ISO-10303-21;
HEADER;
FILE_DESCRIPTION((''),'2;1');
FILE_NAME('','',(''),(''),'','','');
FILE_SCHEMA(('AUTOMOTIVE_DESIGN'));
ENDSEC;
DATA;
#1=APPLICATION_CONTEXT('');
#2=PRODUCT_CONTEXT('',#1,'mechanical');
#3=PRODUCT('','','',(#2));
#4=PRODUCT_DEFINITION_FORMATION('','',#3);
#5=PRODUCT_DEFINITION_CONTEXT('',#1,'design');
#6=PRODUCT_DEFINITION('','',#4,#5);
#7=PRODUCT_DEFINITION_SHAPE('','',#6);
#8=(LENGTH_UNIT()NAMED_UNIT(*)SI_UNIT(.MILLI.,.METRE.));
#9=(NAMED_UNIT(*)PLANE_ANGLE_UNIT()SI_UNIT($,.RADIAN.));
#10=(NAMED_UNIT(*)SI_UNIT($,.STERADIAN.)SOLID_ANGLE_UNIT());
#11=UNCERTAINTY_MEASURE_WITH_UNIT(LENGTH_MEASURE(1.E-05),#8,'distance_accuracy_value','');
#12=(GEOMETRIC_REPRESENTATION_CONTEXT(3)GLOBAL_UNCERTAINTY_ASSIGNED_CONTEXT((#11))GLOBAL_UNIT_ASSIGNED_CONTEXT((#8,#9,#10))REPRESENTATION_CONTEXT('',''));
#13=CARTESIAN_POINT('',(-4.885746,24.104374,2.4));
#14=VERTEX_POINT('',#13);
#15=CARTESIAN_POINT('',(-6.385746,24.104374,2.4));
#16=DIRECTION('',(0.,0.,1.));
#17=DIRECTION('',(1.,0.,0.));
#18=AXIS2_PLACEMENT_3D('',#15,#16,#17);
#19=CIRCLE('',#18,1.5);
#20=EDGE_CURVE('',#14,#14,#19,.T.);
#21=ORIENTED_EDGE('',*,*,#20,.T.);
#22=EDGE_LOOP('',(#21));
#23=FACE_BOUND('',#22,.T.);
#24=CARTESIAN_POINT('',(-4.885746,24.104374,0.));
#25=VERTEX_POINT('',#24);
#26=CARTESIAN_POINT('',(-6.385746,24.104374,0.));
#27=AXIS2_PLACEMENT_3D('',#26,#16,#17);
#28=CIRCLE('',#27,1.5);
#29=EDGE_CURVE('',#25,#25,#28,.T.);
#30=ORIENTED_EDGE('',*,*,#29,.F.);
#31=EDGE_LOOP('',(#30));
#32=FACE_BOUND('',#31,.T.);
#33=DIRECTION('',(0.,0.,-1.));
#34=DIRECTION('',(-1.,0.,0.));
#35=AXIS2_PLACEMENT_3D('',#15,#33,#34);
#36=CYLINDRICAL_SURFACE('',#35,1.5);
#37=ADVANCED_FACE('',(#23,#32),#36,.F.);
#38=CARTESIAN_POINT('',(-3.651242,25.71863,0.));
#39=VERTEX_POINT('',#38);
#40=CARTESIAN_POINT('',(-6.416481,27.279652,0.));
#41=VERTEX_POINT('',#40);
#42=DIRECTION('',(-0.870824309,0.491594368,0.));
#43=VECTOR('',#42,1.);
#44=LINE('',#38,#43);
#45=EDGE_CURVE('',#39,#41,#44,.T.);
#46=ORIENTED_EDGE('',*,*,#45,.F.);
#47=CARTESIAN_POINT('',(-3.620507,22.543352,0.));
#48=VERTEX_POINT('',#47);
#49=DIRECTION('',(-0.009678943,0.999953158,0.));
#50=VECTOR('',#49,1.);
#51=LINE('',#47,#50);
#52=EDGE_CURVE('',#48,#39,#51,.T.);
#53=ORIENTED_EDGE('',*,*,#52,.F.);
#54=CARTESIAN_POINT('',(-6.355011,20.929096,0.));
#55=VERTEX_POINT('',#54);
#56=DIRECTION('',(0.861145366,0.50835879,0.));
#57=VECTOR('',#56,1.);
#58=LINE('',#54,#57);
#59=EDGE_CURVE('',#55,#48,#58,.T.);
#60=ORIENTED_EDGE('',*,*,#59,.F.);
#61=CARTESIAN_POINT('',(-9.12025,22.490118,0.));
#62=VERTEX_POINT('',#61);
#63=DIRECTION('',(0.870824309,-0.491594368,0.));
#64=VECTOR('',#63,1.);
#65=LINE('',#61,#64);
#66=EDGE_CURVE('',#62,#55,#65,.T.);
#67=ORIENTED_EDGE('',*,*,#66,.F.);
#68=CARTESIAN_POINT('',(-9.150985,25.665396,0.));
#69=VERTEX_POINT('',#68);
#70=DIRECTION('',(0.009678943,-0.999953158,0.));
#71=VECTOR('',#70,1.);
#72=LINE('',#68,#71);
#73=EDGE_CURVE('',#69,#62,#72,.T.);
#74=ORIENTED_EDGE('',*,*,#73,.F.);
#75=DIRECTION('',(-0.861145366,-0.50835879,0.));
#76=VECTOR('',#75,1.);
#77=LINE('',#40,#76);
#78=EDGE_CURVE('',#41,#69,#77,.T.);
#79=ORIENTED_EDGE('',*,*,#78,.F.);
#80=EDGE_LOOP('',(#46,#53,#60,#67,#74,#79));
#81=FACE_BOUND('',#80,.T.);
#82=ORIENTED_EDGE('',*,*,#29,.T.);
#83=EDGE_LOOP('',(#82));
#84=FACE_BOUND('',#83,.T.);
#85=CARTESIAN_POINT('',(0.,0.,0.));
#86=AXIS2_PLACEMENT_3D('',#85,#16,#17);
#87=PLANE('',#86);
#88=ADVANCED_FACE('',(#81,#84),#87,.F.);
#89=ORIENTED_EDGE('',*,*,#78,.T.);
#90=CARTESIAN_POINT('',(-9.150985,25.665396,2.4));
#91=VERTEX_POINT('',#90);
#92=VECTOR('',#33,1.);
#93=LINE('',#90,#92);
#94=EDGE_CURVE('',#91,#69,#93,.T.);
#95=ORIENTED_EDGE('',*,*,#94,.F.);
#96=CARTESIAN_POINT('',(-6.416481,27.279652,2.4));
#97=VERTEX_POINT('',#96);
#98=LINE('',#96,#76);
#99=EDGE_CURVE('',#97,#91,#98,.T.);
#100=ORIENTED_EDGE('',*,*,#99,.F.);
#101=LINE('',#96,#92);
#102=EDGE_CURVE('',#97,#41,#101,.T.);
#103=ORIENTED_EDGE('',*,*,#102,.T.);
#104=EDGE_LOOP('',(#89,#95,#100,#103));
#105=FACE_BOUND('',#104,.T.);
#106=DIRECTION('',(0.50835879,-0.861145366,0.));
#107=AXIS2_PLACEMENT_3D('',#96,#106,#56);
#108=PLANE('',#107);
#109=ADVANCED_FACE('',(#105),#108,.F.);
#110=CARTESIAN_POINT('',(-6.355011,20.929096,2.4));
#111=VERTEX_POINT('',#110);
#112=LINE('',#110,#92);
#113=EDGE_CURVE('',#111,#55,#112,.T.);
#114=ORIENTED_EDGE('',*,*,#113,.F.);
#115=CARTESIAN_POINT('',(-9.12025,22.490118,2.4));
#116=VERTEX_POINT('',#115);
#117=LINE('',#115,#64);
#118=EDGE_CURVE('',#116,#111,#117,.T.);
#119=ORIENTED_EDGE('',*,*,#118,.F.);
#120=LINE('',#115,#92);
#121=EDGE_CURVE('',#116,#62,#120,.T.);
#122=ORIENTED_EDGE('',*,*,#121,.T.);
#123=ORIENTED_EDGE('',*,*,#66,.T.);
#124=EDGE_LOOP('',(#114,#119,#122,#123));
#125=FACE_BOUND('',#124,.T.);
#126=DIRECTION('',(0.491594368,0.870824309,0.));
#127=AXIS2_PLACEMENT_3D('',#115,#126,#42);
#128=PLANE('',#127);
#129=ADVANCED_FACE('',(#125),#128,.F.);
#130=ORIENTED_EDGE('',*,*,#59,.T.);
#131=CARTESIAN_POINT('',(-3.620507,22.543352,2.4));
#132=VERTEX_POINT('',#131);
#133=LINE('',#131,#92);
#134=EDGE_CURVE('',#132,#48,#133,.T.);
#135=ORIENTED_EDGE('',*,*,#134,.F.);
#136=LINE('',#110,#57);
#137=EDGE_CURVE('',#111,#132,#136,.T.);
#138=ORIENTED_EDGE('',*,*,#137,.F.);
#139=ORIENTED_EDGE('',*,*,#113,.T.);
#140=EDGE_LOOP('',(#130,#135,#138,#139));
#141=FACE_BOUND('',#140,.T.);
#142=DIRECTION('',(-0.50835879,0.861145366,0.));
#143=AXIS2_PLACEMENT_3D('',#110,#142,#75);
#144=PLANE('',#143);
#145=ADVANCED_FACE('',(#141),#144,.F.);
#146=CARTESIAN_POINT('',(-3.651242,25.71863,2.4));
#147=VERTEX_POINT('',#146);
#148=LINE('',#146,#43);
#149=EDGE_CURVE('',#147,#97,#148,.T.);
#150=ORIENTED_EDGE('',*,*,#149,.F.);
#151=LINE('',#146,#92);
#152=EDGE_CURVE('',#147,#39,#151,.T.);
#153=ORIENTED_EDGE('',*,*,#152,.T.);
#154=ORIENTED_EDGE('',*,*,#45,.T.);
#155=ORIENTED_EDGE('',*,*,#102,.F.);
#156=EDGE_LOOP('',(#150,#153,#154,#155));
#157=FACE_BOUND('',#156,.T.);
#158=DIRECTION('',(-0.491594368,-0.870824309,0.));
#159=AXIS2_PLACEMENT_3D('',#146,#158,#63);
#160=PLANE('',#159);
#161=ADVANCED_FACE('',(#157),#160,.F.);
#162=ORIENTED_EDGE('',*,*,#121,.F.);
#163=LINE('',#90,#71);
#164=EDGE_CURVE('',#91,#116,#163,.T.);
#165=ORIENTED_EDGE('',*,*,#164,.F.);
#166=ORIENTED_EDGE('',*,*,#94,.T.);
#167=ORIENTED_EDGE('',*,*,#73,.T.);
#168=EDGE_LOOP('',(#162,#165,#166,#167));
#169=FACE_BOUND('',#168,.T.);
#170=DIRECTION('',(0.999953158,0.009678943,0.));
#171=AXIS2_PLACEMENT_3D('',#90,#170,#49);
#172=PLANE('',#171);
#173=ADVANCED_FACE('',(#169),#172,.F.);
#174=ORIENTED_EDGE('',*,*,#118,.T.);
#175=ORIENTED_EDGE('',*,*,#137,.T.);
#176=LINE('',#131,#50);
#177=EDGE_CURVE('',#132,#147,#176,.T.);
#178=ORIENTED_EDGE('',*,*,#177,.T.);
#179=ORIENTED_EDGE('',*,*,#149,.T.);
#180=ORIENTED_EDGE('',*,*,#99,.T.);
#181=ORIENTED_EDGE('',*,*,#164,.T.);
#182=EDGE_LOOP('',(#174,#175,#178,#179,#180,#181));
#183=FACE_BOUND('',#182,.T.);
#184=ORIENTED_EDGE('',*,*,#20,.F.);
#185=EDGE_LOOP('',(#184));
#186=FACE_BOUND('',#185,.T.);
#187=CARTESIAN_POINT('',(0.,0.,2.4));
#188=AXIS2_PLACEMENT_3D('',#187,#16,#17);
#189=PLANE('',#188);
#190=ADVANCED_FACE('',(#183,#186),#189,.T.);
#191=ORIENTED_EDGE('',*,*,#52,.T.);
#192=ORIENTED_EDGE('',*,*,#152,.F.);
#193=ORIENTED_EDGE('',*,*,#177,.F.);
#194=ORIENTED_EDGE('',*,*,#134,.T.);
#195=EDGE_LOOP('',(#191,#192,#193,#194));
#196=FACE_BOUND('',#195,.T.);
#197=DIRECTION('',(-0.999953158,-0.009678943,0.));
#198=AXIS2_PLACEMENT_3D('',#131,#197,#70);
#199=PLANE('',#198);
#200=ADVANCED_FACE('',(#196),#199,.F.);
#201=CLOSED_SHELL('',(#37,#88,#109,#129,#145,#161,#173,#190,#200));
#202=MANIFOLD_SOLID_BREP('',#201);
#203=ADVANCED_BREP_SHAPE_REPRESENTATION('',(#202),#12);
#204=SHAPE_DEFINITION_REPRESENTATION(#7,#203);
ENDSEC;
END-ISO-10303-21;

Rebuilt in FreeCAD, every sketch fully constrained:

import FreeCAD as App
import Part
import Sketcher
from FreeCAD import Vector
Q = App.Units.Quantity

doc = App.newDocument("Part")
body = doc.addObject("PartDesign::Body", "Body")

# Sketch on XY plane
sketch1 = body.newObject("Sketcher::SketchObject", "Sketch")
sketch1.AttachmentSupport = (doc.getObject("XY_Plane"), [""])
sketch1.MapMode = "FlatFace"
sketch1.addGeometry(Part.LineSegment(Vector(-3.6, 22.5, 0), Vector(-3.7, 25.7, 0)), False)
sketch1.addGeometry(Part.LineSegment(Vector(-3.7, 25.7, 0), Vector(-6.4, 27.3, 0)), False)
sketch1.addGeometry(Part.LineSegment(Vector(-6.4, 27.3, 0), Vector(-9.2, 25.7, 0)), False)
sketch1.addGeometry(Part.LineSegment(Vector(-9.2, 25.7, 0), Vector(-9.1, 22.5, 0)), False)
sketch1.addGeometry(Part.LineSegment(Vector(-9.1, 22.5, 0), Vector(-6.4, 20.9, 0)), False)
sketch1.addGeometry(Part.LineSegment(Vector(-6.4, 20.9, 0), Vector(-3.6, 22.5, 0)), False)
sketch1.addGeometry(Part.Circle(Vector(-6.4, 24.1, 0), Vector(0, 0, 1), 1.5), False)
sketch1.addConstraint(Sketcher.Constraint("Coincident", 0, 2, 1, 1))
sketch1.addConstraint(Sketcher.Constraint("Coincident", 1, 2, 2, 1))
sketch1.addConstraint(Sketcher.Constraint("Coincident", 2, 2, 3, 1))
sketch1.addConstraint(Sketcher.Constraint("Coincident", 3, 2, 4, 1))
sketch1.addConstraint(Sketcher.Constraint("Coincident", 4, 2, 5, 1))
sketch1.addConstraint(Sketcher.Constraint("Coincident", 5, 2, 0, 1))
sketch1.addConstraint(Sketcher.Constraint("Parallel", 0, 3))
sketch1.addConstraint(Sketcher.Constraint("Parallel", 1, 4))
sketch1.addConstraint(Sketcher.Constraint("Parallel", 2, 5))
sketch1.addConstraint(Sketcher.Constraint("Equal", 0, 1))
sketch1.addConstraint(Sketcher.Constraint("Equal", 1, 2))
sketch1.addConstraint(Sketcher.Constraint("Equal", 2, 3))
sketch1.addConstraint(Sketcher.Constraint("Diameter", 6, Q("3 mm")))
sketch1.addConstraint(Sketcher.Constraint("DistanceY", 4, 2, 2, 2, Q("4.7363 mm")))
sketch1.addConstraint(Sketcher.Constraint("DistanceY", -1, 1, 0, 2, Q("25.71863 mm")))
sketch1.addConstraint(Sketcher.Constraint("DistanceX", 1, 2, -1, 1, Q("6.416481 mm")))
sketch1.addConstraint(Sketcher.Constraint("DistanceY", -1, 1, 1, 2, Q("27.279652 mm")))
sketch1.addConstraint(Sketcher.Constraint("DistanceX", 3, 2, -1, 1, Q("9.12025 mm")))
sketch1.addConstraint(Sketcher.Constraint("DistanceY", -1, 1, 3, 2, Q("22.490118 mm")))
sketch1.addConstraint(Sketcher.Constraint("DistanceX", 2, 2, 6, 3, Q("2.765239 mm")))
sketch1.addConstraint(Sketcher.Constraint("DistanceY", 6, 3, 2, 2, Q("1.561022 mm")))
pad1 = body.newObject("PartDesign::Pad", "Pad")
pad1.Profile = sketch1
pad1.Length = 2.4

doc.recompute()
